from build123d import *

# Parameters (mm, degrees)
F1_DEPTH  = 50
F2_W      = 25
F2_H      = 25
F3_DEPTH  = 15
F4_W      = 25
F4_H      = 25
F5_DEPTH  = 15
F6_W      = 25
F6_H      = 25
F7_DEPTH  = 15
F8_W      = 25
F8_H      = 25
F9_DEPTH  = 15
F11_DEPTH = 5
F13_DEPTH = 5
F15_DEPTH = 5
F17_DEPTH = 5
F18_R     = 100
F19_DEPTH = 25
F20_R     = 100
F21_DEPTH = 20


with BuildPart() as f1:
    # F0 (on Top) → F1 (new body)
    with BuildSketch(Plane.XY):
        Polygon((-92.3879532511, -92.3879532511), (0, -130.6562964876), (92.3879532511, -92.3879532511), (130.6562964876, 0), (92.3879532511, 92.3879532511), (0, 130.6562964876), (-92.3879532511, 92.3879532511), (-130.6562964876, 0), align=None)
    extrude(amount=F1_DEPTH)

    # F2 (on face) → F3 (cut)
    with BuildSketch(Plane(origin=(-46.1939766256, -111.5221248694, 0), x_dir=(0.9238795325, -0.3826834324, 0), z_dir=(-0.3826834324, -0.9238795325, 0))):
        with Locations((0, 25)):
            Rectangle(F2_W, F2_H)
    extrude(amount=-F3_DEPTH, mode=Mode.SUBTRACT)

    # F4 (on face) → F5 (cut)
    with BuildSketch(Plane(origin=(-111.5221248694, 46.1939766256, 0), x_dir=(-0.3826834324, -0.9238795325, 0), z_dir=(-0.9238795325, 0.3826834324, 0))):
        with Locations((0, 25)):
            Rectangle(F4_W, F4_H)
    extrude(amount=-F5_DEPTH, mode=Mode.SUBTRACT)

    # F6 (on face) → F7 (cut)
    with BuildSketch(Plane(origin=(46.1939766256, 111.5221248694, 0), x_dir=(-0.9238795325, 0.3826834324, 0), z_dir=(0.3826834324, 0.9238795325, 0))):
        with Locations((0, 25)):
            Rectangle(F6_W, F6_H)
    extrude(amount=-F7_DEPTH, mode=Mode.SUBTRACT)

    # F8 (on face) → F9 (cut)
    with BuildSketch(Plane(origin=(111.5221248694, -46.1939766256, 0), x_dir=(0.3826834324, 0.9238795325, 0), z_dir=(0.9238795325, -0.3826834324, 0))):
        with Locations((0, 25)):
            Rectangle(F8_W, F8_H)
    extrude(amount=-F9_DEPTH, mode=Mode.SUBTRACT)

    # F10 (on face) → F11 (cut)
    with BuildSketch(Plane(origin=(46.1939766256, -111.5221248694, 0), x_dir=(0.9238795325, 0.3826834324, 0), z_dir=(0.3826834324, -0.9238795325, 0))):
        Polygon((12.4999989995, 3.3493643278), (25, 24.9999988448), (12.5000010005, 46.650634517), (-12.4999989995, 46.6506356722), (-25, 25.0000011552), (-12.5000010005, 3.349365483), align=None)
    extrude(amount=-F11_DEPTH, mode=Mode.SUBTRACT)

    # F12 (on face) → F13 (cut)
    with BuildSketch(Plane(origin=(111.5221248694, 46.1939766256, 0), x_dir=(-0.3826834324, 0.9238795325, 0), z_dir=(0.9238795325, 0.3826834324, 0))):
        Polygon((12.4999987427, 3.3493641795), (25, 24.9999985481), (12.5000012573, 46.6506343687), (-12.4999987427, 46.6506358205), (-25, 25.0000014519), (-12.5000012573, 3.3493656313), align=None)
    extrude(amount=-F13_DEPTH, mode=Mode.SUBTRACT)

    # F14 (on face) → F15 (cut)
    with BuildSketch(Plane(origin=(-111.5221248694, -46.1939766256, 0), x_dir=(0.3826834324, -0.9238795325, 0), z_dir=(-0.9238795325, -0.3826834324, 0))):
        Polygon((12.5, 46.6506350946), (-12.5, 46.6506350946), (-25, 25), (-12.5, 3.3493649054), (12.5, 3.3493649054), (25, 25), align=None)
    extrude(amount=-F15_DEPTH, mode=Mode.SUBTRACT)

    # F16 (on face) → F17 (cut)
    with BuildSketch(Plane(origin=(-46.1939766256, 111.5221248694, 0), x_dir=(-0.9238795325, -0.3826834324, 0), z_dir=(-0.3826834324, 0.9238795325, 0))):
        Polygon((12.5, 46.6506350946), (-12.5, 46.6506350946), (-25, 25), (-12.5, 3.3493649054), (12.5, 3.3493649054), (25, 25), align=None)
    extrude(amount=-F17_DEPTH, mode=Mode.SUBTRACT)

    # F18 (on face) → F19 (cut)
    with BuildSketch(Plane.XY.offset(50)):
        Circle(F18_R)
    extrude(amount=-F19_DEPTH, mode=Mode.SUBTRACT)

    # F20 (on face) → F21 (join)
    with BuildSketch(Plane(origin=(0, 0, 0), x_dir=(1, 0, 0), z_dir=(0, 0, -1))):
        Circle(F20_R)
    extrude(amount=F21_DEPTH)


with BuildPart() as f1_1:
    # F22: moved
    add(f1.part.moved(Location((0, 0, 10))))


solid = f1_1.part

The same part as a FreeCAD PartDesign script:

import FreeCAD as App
import Part
import Sketcher

V = App.Vector
Q = App.Units.Quantity

doc = App.newDocument("Part")
body = doc.addObject("PartDesign::Body", "Body")

sketch1 = body.newObject("Sketcher::SketchObject", "Sketch")
sketch1.AttachmentSupport = (doc.getObject("XY_Plane"), [""])
sketch1.MapMode = "FlatFace"
sketch1.addGeometry([
    Part.LineSegment(V(-92.387953, -92.387953, 0), V(0, -130.656296, 0)),
    Part.LineSegment(V(0, -130.656296, 0), V(92.387953, -92.387953, 0)),
    Part.LineSegment(V(92.387953, -92.387953, 0), V(130.656296, 0, 0)),
    Part.LineSegment(V(130.656296, 0, 0), V(92.387953, 92.387953, 0)),
    Part.LineSegment(V(92.387953, 92.387953, 0), V(0, 130.656296, 0)),
    Part.LineSegment(V(0, 130.656296, 0), V(-92.387953, 92.387953, 0)),
    Part.LineSegment(V(-92.387953, 92.387953, 0), V(-130.656296, 0, 0)),
    Part.LineSegment(V(-130.656296, 0, 0), V(-92.387953, -92.387953, 0)),
], False)
sketch1.addConstraint([
    Sketcher.Constraint("Coincident", 0, 2, 1, 1),
    Sketcher.Constraint("Coincident", 1, 2, 2, 1),
    Sketcher.Constraint("Coincident", 2, 2, 3, 1),
    Sketcher.Constraint("Coincident", 3, 2, 4, 1),
    Sketcher.Constraint("Coincident", 4, 2, 5, 1),
    Sketcher.Constraint("Coincident", 5, 2, 6, 1),
    Sketcher.Constraint("Coincident", 6, 2, 7, 1),
    Sketcher.Constraint("Coincident", 7, 2, 0, 1),
    Sketcher.Constraint("Symmetric", 0, 2, 4, 2, -1, 1),
    Sketcher.Constraint("Symmetric", 1, 2, 5, 2, -1, 1),
    Sketcher.Constraint("Symmetric", 2, 2, 6, 2, -1, 1),
    Sketcher.Constraint("Symmetric", 3, 2, 7, 2, -1, 1),
    Sketcher.Constraint("Symmetric", 3, 2, 5, 2, -2),
    Sketcher.Constraint("PointOnObject", 0, 2, -2),
    Sketcher.Constraint("PointOnObject", 2, 2, -1),
    Sketcher.Constraint("Perpendicular", 0, 2),
    Sketcher.Constraint("Equal", 1, 2),
    Sketcher.Constraint("Distance", 0, Q("100 mm")),
    Sketcher.Constraint("Angle", 0, Q("-22.5 deg")),
])
pad1 = body.newObject("PartDesign::Pad", "Pad")
pad1.Profile = sketch1
pad1.Length = 50

sketch2 = body.newObject("Sketcher::SketchObject", "Sketch001")
sketch2.Placement = App.Placement(V(-46.193977, -111.522125, 0), App.Rotation(V(0.923879532, -0.382683432, 0), V(0, 0, 0.999999999), V(-0.382683432, -0.923879532, 0), "ZXY"))
sketch2.addGeometry([
    Part.LineSegment(V(-12.5, 37.5, 0), V(-12.5, 12.5, 0)),
    Part.LineSegment(V(-12.5, 12.5, 0), V(12.5, 12.5, 0)),
    Part.LineSegment(V(12.5, 12.5, 0), V(12.5, 37.5, 0)),
    Part.LineSegment(V(12.5, 37.5, 0), V(-12.5, 37.5, 0)),
], False)
sketch2.addConstraint([
    Sketcher.Constraint("Coincident", 0, 2, 1, 1),
    Sketcher.Constraint("Coincident", 1, 2, 2, 1),
    Sketcher.Constraint("Coincident", 2, 2, 3, 1),
    Sketcher.Constraint("Coincident", 3, 2, 0, 1),
    Sketcher.Constraint("Vertical", 0),
    Sketcher.Constraint("Horizontal", 1),
    Sketcher.Constraint("Vertical", 2),
    Sketcher.Constraint("Horizontal", 3),
    Sketcher.Constraint("Equal", 3, 0),
    Sketcher.Constraint("DistanceX", 1, 1, 1, 2, Q("25 mm")),
    Sketcher.Constraint("DistanceX", 0, 2, -1, 1, Q("12.5 mm")),
    Sketcher.Constraint("DistanceY", -1, 1, 0, 2, Q("12.5 mm")),
])
pocket1 = body.newObject("PartDesign::Pocket", "Pocket")
pocket1.Profile = sketch2
pocket1.Length = 15

sketch3 = body.newObject("Sketcher::SketchObject", "Sketch002")
sketch3.Placement = App.Placement(V(-111.522125, 46.193977, 0), App.Rotation(V(-0.382683432, -0.923879532, 0), V(0, 0, 0.999999999), V(-0.923879532, 0.382683432, 0), "ZXY"))
sketch3.addGeometry([
    Part.LineSegment(V(-12.5, 37.5, 0), V(-12.5, 12.5, 0)),
    Part.LineSegment(V(-12.5, 12.5, 0), V(12.5, 12.5, 0)),
    Part.LineSegment(V(12.5, 12.5, 0), V(12.5, 37.5, 0)),
    Part.LineSegment(V(12.5, 37.5, 0), V(-12.5, 37.5, 0)),
], False)
sketch3.addConstraint([
    Sketcher.Constraint("Coincident", 0, 2, 1, 1),
    Sketcher.Constraint("Coincident", 1, 2, 2, 1),
    Sketcher.Constraint("Coincident", 2, 2, 3, 1),
    Sketcher.Constraint("Coincident", 3, 2, 0, 1),
    Sketcher.Constraint("Vertical", 0),
    Sketcher.Constraint("Horizontal", 1),
    Sketcher.Constraint("Vertical", 2),
    Sketcher.Constraint("Horizontal", 3),
    Sketcher.Constraint("Equal", 3, 0),
    Sketcher.Constraint("DistanceX", 1, 1, 1, 2, Q("25 mm")),
    Sketcher.Constraint("DistanceX", 0, 2, -1, 1, Q("12.5 mm")),
    Sketcher.Constraint("DistanceY", -1, 1, 0, 2, Q("12.5 mm")),
])
pocket2 = body.newObject("PartDesign::Pocket", "Pocket001")
pocket2.Profile = sketch3
pocket2.Length = 15

sketch4 = body.newObject("Sketcher::SketchObject", "Sketch003")
sketch4.Placement = App.Placement(V(46.193977, 111.522125, 0), App.Rotation(V(-0.923879532, 0.382683432, 0), V(0, 0, 0.999999999), V(0.382683432, 0.923879532, 0), "ZXY"))
sketch4.addGeometry([
    Part.LineSegment(V(-12.5, 37.5, 0), V(-12.5, 12.5, 0)),
    Part.LineSegment(V(-12.5, 12.5, 0), V(12.5, 12.5, 0)),
    Part.LineSegment(V(12.5, 12.5, 0), V(12.5, 37.5, 0)),
    Part.LineSegment(V(12.5, 37.5, 0), V(-12.5, 37.5, 0)),
], False)
sketch4.addConstraint([
    Sketcher.Constraint("Coincident", 0, 2, 1, 1),
    Sketcher.Constraint("Coincident", 1, 2, 2, 1),
    Sketcher.Constraint("Coincident", 2, 2, 3, 1),
    Sketcher.Constraint("Coincident", 3, 2, 0, 1),
    Sketcher.Constraint("Vertical", 0),
    Sketcher.Constraint("Horizontal", 1),
    Sketcher.Constraint("Vertical", 2),
    Sketcher.Constraint("Horizontal", 3),
    Sketcher.Constraint("Equal", 3, 0),
    Sketcher.Constraint("DistanceX", 1, 1, 1, 2, Q("25 mm")),
    Sketcher.Constraint("DistanceX", 0, 2, -1, 1, Q("12.5 mm")),
    Sketcher.Constraint("DistanceY", -1, 1, 0, 2, Q("12.5 mm")),
])
pocket3 = body.newObject("PartDesign::Pocket", "Pocket002")
pocket3.Profile = sketch4
pocket3.Length = 15

sketch5 = body.newObject("Sketcher::SketchObject", "Sketch004")
sketch5.Placement = App.Placement(V(111.522125, -46.193977, 0), App.Rotation(V(0.382683432, 0.923879532, 0), V(0, 0, 0.999999999), V(0.923879532, -0.382683432, 0), "ZXY"))
sketch5.addGeometry([
    Part.LineSegment(V(-12.5, 37.5, 0), V(-12.5, 12.5, 0)),
    Part.LineSegment(V(-12.5, 12.5, 0), V(12.5, 12.5, 0)),
    Part.LineSegment(V(12.5, 12.5, 0), V(12.5, 37.5, 0)),
    Part.LineSegment(V(12.5, 37.5, 0), V(-12.5, 37.5, 0)),
], False)
sketch5.addConstraint([
    Sketcher.Constraint("Coincident", 0, 2, 1, 1),
    Sketcher.Constraint("Coincident", 1, 2, 2, 1),
    Sketcher.Constraint("Coincident", 2, 2, 3, 1),
    Sketcher.Constraint("Coincident", 3, 2, 0, 1),
    Sketcher.Constraint("Vertical", 0),
    Sketcher.Constraint("Horizontal", 1),
    Sketcher.Constraint("Vertical", 2),
    Sketcher.Constraint("Horizontal", 3),
    Sketcher.Constraint("Equal", 3, 0),
    Sketcher.Constraint("DistanceX", 1, 1, 1, 2, Q("25 mm")),
    Sketcher.Constraint("DistanceX", 0, 2, -1, 1, Q("12.5 mm")),
    Sketcher.Constraint("DistanceY", -1, 1, 0, 2, Q("12.5 mm")),
])
pocket4 = body.newObject("PartDesign::Pocket", "Pocket003")
pocket4.Profile = sketch5
pocket4.Length = 15

sketch6 = body.newObject("Sketcher::SketchObject", "Sketch005")
sketch6.Placement = App.Placement(V(46.193977, -111.522125, 0), App.Rotation(V(0.923879532, 0.382683432, 0), V(0, 0, 0.999999999), V(0.382683432, -0.923879532, 0), "ZXY"))
sketch6.addGeometry([
    Part.LineSegment(V(12.499999, 3.349364, 0), V(25, 24.999999, 0)),
    Part.LineSegment(V(25, 24.999999, 0), V(12.500001, 46.650634, 0)),
    Part.LineSegment(V(12.500001, 46.650634, 0), V(-12.499999, 46.650636, 0)),
    Part.LineSegment(V(-12.499999, 46.650636, 0), V(-25, 25.000001, 0)),
    Part.LineSegment(V(-25, 25.000001, 0), V(-12.500001, 3.349365, 0)),
    Part.LineSegment(V(-12.500001, 3.349365, 0), V(12.499999, 3.349364, 0)),
], False)
sketch6.addConstraint([
    Sketcher.Constraint("Coincident", 0, 2, 1, 1),
    Sketcher.Constraint("Coincident", 1, 2, 2, 1),
    Sketcher.Constraint("Coincident", 2, 2, 3, 1),
    Sketcher.Constraint("Coincident", 3, 2, 4, 1),
    Sketcher.Constraint("Coincident", 4, 2, 5, 1),
    Sketcher.Constraint("Coincident", 5, 2, 0, 1),
    Sketcher.Constraint("Horizontal", 2),
    Sketcher.Constraint("Horizontal", 5),
    Sketcher.Constraint("Symmetric", 0, 2, 3, 2, -2),
    Sketcher.Constraint("Parallel", 0, 3),
    Sketcher.Constraint("Parallel", 1, 4),
    Sketcher.Constraint("Equal", 2, 5),
    Sketcher.Constraint("Equal", 0, 1),
    Sketcher.Constraint("DistanceX", 2, 2, 2, 1, Q("25 mm")),
    Sketcher.Constraint("Angle", 0, Q("59.999997 deg")),
    Sketcher.Constraint("Distance", 0, Q("25 mm")),
    Sketcher.Constraint("DistanceY", -1, 1, 0, 2, Q("24.999999 mm")),
])
pocket5 = body.newObject("PartDesign::Pocket", "Pocket004")
pocket5.Profile = sketch6
pocket5.Length = 5

sketch7 = body.newObject("Sketcher::SketchObject", "Sketch006")
sketch7.Placement = App.Placement(V(111.522125, 46.193977, 0), App.Rotation(V(-0.382683432, 0.923879532, 0), V(0, 0, 0.999999999), V(0.923879532, 0.382683432, 0), "ZXY"))
sketch7.addGeometry([
    Part.LineSegment(V(12.499999, 3.349364, 0), V(25, 24.999998, 0)),
    Part.LineSegment(V(25, 24.999998, 0), V(12.500001, 46.650634, 0)),
    Part.LineSegment(V(12.500001, 46.650634, 0), V(-12.499999, 46.650636, 0)),
    Part.LineSegment(V(-12.499999, 46.650636, 0), V(-25, 25.000001, 0)),
    Part.LineSegment(V(-25, 25.000001, 0), V(-12.500001, 3.349366, 0)),
    Part.LineSegment(V(-12.500001, 3.349366, 0), V(12.499999, 3.349364, 0)),
], False)
sketch7.addConstraint([
    Sketcher.Constraint("Coincident", 0, 2, 1, 1),
    Sketcher.Constraint("Coincident", 1, 2, 2, 1),
    Sketcher.Constraint("Coincident", 2, 2, 3, 1),
    Sketcher.Constraint("Coincident", 3, 2, 4, 1),
    Sketcher.Constraint("Coincident", 4, 2, 5, 1),
    Sketcher.Constraint("Coincident", 5, 2, 0, 1),
    Sketcher.Constraint("Horizontal", 2),
    Sketcher.Constraint("Horizontal", 5),
    Sketcher.Constraint("Symmetric", 0, 2, 3, 2, -2),
    Sketcher.Constraint("Parallel", 0, 3),
    Sketcher.Constraint("Parallel", 1, 4),
    Sketcher.Constraint("Equal", 2, 5),
    Sketcher.Constraint("Equal", 0, 1),
    Sketcher.Constraint("DistanceX", 2, 2, 2, 1, Q("25 mm")),
    Sketcher.Constraint("Angle", 0, Q("59.999997 deg")),
    Sketcher.Constraint("Distance", 0, Q("25 mm")),
    Sketcher.Constraint("DistanceY", -1, 1, 0, 2, Q("24.999998 mm")),
])
pocket6 = body.newObject("PartDesign::Pocket", "Pocket005")
pocket6.Profile = sketch7
pocket6.Length = 5

sketch8 = body.newObject("Sketcher::SketchObject", "Sketch007")
sketch8.Placement = App.Placement(V(-111.522125, -46.193977, 0), App.Rotation(V(0.382683432, -0.923879532, 0), V(0, 0, 0.999999999), V(-0.923879532, -0.382683432, 0), "ZXY"))
sketch8.addGeometry([
    Part.LineSegment(V(12.5, 46.650635, 0), V(-12.5, 46.650635, 0)),
    Part.LineSegment(V(-12.5, 46.650635, 0), V(-25, 25, 0)),
    Part.LineSegment(V(-25, 25, 0), V(-12.5, 3.349365, 0)),
    Part.LineSegment(V(-12.5, 3.349365, 0), V(12.5, 3.349365, 0)),
    Part.LineSegment(V(12.5, 3.349365, 0), V(25, 25, 0)),
    Part.LineSegment(V(25, 25, 0), V(12.5, 46.650635, 0)),
], False)
sketch8.addConstraint([
    Sketcher.Constraint("Coincident", 0, 2, 1, 1),
    Sketcher.Constraint("Coincident", 1, 2, 2, 1),
    Sketcher.Constraint("Coincident", 2, 2, 3, 1),
    Sketcher.Constraint("Coincident", 3, 2, 4, 1),
    Sketcher.Constraint("Coincident", 4, 2, 5, 1),
    Sketcher.Constraint("Coincident", 5, 2, 0, 1),
    Sketcher.Constraint("Horizontal", 0),
    Sketcher.Constraint("Horizontal", 3),
    Sketcher.Constraint("Symmetric", 1, 2, 4, 2, -2),
    Sketcher.Constraint("Parallel", 1, 4),
    Sketcher.Constraint("Parallel", 2, 5),
    Sketcher.Constraint("Vertical", 0, 2, 2, 2),
    Sketcher.Constraint("Vertical", 3, 2, 5, 2),
    Sketcher.Constraint("DistanceX", 0, 2, 0, 1, Q("25 mm")),
    Sketcher.Constraint("Angle", 1, Q("-120 deg")),
    Sketcher.Constraint("Distance", 1, Q("25 mm")),
    Sketcher.Constraint("DistanceY", -1, 1, 1, 2, Q("25 mm")),
])
pocket7 = body.newObject("PartDesign::Pocket", "Pocket006")
pocket7.Profile = sketch8
pocket7.Length = 5

sketch9 = body.newObject("Sketcher::SketchObject", "Sketch008")
sketch9.Placement = App.Placement(V(-46.193977, 111.522125, 0), App.Rotation(V(-0.923879532, -0.382683432, 0), V(0, 0, 0.999999999), V(-0.382683432, 0.923879532, 0), "ZXY"))
sketch9.addGeometry([
    Part.LineSegment(V(12.5, 46.650635, 0), V(-12.5, 46.650635, 0)),
    Part.LineSegment(V(-12.5, 46.650635, 0), V(-25, 25, 0)),
    Part.LineSegment(V(-25, 25, 0), V(-12.5, 3.349365, 0)),
    Part.LineSegment(V(-12.5, 3.349365, 0), V(12.5, 3.349365, 0)),
    Part.LineSegment(V(12.5, 3.349365, 0), V(25, 25, 0)),
    Part.LineSegment(V(25, 25, 0), V(12.5, 46.650635, 0)),
], False)
sketch9.addConstraint([
    Sketcher.Constraint("Coincident", 0, 2, 1, 1),
    Sketcher.Constraint("Coincident", 1, 2, 2, 1),
    Sketcher.Constraint("Coincident", 2, 2, 3, 1),
    Sketcher.Constraint("Coincident", 3, 2, 4, 1),
    Sketcher.Constraint("Coincident", 4, 2, 5, 1),
    Sketcher.Constraint("Coincident", 5, 2, 0, 1),
    Sketcher.Constraint("Horizontal", 0),
    Sketcher.Constraint("Horizontal", 3),
    Sketcher.Constraint("Symmetric", 1, 2, 4, 2, -2),
    Sketcher.Constraint("Parallel", 1, 4),
    Sketcher.Constraint("Parallel", 2, 5),
    Sketcher.Constraint("Vertical", 0, 2, 2, 2),
    Sketcher.Constraint("Vertical", 3, 2, 5, 2),
    Sketcher.Constraint("DistanceX", 0, 2, 0, 1, Q("25 mm")),
    Sketcher.Constraint("Angle", 1, Q("-120 deg")),
    Sketcher.Constraint("Distance", 1, Q("25 mm")),
    Sketcher.Constraint("DistanceY", -1, 1, 1, 2, Q("25 mm")),
])
pocket8 = body.newObject("PartDesign::Pocket", "Pocket007")
pocket8.Profile = sketch9
pocket8.Length = 5

sketch10 = body.newObject("Sketcher::SketchObject", "Sketch009")
sketch10.AttachmentSupport = (doc.getObject("XY_Plane"), [""])
sketch10.MapMode = "FlatFace"
sketch10.AttachmentOffset = App.Placement(V(0, 0, 50), App.Rotation())
sketch10.addGeometry(Part.Circle(V(0, 0, 0), V(0, 0, 1), 100), False)
sketch10.addConstraint([
    Sketcher.Constraint("Coincident", 0, 3, -1, 1),
    Sketcher.Constraint("Diameter", 0, Q("200 mm")),
])
pocket9 = body.newObject("PartDesign::Pocket", "Pocket008")
pocket9.Profile = sketch10
pocket9.Length = 25

sketch11 = body.newObject("Sketcher::SketchObject", "Sketch010")
sketch11.AttachmentSupport = (doc.getObject("XY_Plane"), [""])
sketch11.MapMode = "FlatFace"
sketch11.addGeometry(Part.Circle(V(0, 0, 0), V(0, 0, 1), 100), False)
sketch11.addConstraint([
    Sketcher.Constraint("Coincident", 0, 3, -1, 1),
    Sketcher.Constraint("Diameter", 0, Q("200 mm")),
])
pad2 = body.newObject("PartDesign::Pad", "Pad001")
pad2.Profile = sketch11
pad2.Length = 20
pad2.Reversed = True
body2 = doc.addObject("PartDesign::Body", "Body001")
doc.recompute()

body.Placement = App.Placement(V(0, 0, 10), App.Rotation(V(0, 0, 1), 0))
boolean = body2.newObject("PartDesign::Boolean", "Boolean")
boolean.Type = "Fuse"
boolean.addObjects([body])

doc.recompute()
